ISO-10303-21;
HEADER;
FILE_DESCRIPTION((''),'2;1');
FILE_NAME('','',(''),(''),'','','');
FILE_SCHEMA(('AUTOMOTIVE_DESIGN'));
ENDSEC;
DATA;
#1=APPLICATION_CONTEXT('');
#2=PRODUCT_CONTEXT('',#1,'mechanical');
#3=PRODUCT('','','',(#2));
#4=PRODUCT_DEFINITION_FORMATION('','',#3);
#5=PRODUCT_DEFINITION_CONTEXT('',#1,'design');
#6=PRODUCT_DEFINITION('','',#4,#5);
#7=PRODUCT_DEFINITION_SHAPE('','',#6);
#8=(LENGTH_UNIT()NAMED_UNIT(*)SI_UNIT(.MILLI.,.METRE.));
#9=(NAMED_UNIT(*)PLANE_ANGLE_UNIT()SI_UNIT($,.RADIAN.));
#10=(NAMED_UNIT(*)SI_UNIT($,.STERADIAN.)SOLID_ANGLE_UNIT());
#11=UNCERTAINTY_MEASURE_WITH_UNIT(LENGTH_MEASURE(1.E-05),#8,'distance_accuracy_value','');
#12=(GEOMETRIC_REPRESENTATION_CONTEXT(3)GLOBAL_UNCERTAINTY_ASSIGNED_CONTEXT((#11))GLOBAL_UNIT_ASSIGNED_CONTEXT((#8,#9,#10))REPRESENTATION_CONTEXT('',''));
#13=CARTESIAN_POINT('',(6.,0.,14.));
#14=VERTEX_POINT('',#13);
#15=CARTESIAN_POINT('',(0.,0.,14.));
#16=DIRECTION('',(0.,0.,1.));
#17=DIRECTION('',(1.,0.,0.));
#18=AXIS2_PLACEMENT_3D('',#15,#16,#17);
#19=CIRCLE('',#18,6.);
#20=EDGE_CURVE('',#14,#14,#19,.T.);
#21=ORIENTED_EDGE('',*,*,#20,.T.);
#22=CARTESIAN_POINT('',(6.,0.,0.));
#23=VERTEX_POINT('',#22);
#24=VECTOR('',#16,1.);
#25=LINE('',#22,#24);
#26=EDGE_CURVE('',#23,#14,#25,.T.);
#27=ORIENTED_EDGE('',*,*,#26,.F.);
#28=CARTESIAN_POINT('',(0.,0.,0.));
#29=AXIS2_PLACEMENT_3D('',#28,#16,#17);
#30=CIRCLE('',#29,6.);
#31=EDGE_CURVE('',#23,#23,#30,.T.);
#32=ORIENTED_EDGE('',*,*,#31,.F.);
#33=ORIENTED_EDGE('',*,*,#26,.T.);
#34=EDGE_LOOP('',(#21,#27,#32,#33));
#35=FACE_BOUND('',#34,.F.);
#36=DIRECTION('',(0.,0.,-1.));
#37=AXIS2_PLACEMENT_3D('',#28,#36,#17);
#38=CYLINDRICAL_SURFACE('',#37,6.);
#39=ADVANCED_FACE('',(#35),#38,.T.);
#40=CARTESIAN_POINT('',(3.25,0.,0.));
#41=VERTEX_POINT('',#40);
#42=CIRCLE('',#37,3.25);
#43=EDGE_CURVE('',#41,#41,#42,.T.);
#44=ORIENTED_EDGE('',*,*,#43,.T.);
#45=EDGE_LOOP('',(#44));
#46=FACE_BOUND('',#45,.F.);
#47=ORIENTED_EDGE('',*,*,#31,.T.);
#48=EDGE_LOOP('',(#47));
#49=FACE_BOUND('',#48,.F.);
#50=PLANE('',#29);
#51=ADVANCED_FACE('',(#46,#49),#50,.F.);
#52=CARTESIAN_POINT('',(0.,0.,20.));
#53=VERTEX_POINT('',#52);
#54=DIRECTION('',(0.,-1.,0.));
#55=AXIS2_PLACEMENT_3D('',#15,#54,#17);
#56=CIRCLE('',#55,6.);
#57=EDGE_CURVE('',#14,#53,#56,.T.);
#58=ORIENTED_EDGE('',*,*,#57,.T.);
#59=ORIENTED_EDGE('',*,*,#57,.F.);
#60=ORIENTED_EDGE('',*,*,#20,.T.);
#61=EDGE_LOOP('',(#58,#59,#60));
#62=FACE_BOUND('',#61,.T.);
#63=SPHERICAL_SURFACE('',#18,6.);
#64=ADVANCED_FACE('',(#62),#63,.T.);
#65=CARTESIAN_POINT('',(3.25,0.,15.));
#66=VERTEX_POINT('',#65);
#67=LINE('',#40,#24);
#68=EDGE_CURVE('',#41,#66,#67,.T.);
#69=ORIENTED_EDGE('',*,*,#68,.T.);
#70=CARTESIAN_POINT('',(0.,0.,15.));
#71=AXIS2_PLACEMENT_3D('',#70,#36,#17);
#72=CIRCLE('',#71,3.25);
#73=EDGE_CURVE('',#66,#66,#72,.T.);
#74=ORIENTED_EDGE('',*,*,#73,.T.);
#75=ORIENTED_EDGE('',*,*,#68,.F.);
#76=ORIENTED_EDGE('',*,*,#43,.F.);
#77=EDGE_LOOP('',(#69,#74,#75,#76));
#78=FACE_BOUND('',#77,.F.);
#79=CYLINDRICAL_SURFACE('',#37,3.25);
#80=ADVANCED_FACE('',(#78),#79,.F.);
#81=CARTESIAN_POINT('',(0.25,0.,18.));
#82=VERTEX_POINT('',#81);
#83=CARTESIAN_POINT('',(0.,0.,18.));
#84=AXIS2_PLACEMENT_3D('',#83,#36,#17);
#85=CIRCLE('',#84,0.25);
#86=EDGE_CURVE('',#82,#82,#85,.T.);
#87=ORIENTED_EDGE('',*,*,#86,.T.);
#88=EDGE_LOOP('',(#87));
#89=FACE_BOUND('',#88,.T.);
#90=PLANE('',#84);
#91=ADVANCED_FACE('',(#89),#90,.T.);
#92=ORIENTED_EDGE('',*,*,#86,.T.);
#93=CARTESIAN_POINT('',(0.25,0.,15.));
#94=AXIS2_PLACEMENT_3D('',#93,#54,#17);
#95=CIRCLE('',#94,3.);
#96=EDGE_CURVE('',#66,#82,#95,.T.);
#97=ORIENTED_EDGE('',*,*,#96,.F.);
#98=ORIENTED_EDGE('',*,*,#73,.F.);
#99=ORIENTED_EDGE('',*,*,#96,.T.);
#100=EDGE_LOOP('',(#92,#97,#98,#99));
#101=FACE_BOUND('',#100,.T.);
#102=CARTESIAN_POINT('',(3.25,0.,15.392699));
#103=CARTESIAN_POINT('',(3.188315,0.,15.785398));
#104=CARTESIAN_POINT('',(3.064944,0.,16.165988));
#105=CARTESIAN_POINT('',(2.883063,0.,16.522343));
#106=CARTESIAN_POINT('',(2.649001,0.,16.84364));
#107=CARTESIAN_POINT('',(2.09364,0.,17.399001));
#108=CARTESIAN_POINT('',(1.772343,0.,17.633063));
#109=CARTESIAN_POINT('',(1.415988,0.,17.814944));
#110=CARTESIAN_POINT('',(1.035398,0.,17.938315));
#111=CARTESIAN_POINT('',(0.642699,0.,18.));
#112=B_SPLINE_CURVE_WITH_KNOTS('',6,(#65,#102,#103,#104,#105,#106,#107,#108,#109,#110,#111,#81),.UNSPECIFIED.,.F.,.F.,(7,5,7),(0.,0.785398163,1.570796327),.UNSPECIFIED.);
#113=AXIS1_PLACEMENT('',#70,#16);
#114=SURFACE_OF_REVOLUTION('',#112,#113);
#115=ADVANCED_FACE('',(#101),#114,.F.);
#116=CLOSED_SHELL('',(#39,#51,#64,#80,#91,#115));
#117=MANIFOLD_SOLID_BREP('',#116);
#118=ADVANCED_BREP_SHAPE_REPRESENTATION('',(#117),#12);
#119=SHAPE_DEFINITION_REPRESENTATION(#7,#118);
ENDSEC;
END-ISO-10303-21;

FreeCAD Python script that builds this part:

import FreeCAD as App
import Part
import Sketcher
Q = App.Units.Quantity


def edges_at(feature, points):
    """Names of the edges that pass closest to the given points."""
    edges = feature.Shape.Edges
    near = lambda p: min(range(len(edges)), key=lambda i: edges[i].distToShape(Part.Vertex(*p))[0])
    return sorted({f"Edge{near(p) + 1}" for p in points})

doc = App.newDocument("Part")
body = doc.addObject("PartDesign::Body", "Body")

# Sketch on XY plane
sketch1 = body.newObject("Sketcher::SketchObject", "Sketch")
sketch1.AttachmentSupport = (doc.getObject("XY_Plane"), [""])
sketch1.MapMode = "FlatFace"
sketch1.addGeometry(Part.Circle(App.Vector(0, 0, 0), App.Vector(0, 0, 1), 6), False)
sketch1.addConstraint(Sketcher.Constraint("Coincident", 0, 3, -1, 1))
sketch1.addConstraint(Sketcher.Constraint("Diameter", 0, Q("12 mm")))
pad1 = body.newObject("PartDesign::Pad", "Pad")
pad1.Profile = sketch1
pad1.Length = 20
doc.recompute()

fillet = body.newObject("PartDesign::Fillet", "Fillet")
fillet.Base = (pad1, edges_at(pad1, [(-6, 0, 20)]))
fillet.Radius = 6

# Sketch on XY plane
sketch2 = body.newObject("Sketcher::SketchObject", "Sketch001")
sketch2.AttachmentSupport = (doc.getObject("XY_Plane"), [""])
sketch2.MapMode = "FlatFace"
sketch2.addGeometry(Part.Circle(App.Vector(0, 0, 0), App.Vector(0, 0, 1), 3.2), False)
sketch2.addConstraint(Sketcher.Constraint("Coincident", 0, 3, -1, 1))
sketch2.addConstraint(Sketcher.Constraint("Diameter", 0, Q("6.5 mm")))
pocket1 = body.newObject("PartDesign::Pocket", "Pocket")
pocket1.Profile = sketch2
pocket1.Length = 18
pocket1.Reversed = True
doc.recompute()

fillet2 = body.newObject("PartDesign::Fillet", "Fillet001")
fillet2.Base = (pocket1, edges_at(pocket1, [(-3.25, 0, 18)]))
fillet2.Radius = 3

doc.recompute()
